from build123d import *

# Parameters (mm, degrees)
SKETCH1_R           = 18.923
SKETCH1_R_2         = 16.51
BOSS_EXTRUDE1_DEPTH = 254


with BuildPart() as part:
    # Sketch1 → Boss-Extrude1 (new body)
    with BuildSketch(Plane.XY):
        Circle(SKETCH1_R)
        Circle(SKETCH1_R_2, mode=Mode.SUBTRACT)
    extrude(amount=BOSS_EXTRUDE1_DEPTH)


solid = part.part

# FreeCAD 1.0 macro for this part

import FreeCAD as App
import Part
import Sketcher

V = App.Vector
Q = App.Units.Quantity

doc = App.newDocument("Part")
params = doc.addObject("Spreadsheet::Sheet", "Params")
for row, (alias, value) in enumerate([
    ("sketch1_diameter", "1.3 in"),
    ("sketch1_diameter2", "1.49 in"),
    ("pad1_length", "10 in"),
], start=1):
    params.set(f"A{row}", alias)
    params.set(f"B{row}", "=" + value)
    params.setAlias(f"B{row}", alias)

body = doc.addObject("PartDesign::Body", "Body")

# Sketch on XY plane
sketch1 = body.newObject("Sketcher::SketchObject", "Sketch")
sketch1.AttachmentSupport = (doc.getObject("XY_Plane"), [""])
sketch1.MapMode = "FlatFace"
sketch1.addGeometry([
    Part.Circle(V(0, 0, 0), V(0, 0, 1), 18.923),
    Part.Circle(V(0, 0, 0), V(0, 0, 1), 16.51),
], False)
sketch1.addConstraint([
    Sketcher.Constraint("Coincident", 0, 3, -1, 1),
    Sketcher.Constraint("Coincident", 1, 3, -1, 1),
    Sketcher.Constraint("Diameter", 1, Q("1.3 in")),
    Sketcher.Constraint("Diameter", 0, Q("1.49 in")),
])
sketch1.setExpression("Constraints[2]", "Params.sketch1_diameter")
sketch1.setExpression("Constraints[3]", "Params.sketch1_diameter2")
pad1 = body.newObject("PartDesign::Pad", "Pad")
pad1.Profile = sketch1
pad1.setExpression("Length", "Params.pad1_length")

doc.recompute()
